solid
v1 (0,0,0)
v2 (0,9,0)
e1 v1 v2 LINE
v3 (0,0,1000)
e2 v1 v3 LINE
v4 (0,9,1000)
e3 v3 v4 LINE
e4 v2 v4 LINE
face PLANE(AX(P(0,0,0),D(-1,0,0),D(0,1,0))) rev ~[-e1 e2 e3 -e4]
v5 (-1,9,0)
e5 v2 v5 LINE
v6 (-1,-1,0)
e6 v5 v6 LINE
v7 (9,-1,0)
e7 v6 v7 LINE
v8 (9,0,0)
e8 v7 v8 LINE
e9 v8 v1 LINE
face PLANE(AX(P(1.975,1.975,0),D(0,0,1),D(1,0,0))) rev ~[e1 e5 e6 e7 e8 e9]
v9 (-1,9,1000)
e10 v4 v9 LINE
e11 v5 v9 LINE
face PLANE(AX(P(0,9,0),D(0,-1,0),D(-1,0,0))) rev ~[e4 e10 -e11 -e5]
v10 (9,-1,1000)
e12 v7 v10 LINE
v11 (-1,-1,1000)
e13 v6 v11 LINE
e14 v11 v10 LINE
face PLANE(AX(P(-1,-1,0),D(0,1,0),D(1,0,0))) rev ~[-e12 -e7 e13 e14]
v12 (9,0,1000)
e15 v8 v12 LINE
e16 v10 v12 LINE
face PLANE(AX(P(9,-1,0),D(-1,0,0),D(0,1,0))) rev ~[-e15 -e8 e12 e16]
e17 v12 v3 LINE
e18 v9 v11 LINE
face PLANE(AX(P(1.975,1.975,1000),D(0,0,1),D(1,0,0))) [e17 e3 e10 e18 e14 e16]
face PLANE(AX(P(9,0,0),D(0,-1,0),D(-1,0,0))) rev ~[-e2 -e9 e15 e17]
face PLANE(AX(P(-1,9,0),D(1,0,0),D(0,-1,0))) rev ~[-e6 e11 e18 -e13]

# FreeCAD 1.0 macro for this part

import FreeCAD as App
import Part
import Sketcher
from FreeCAD import Vector
Q = App.Units.Quantity


def add_polygon(sketch, points):
    """Adds a closed chain of lines whose ends are joined by coincident constraints."""
    first, n = sketch.GeometryCount, len(points)
    for a, b in zip(points, points[1:] + points[:1]):
        sketch.addGeometry(Part.LineSegment(App.Vector(*a, 0), App.Vector(*b, 0)), False)
    for i in range(n):
        sketch.addConstraint(Sketcher.Constraint("Coincident", first + i, 2, first + (i + 1) % n, 1))

doc = App.newDocument("Part")
body = doc.addObject("PartDesign::Body", "Body")

sketch1 = body.newObject("Sketcher::SketchObject", "Sketch")
sketch1.AttachmentSupport = (doc.getObject("XY_Plane"), [""])
sketch1.MapMode = "FlatFace"
add_polygon(sketch1, [(0, 0), (0, 9), (-1, 9), (-1, -1), (9, -1), (9, 0)])
sketch1.addConstraint(Sketcher.Constraint("Vertical", 0))
sketch1.addConstraint(Sketcher.Constraint("Horizontal", 1))
sketch1.addConstraint(Sketcher.Constraint("Vertical", 2))
sketch1.addConstraint(Sketcher.Constraint("Horizontal", 3))
sketch1.addConstraint(Sketcher.Constraint("Vertical", 4))
sketch1.addConstraint(Sketcher.Constraint("Horizontal", 5))
sketch1.addConstraint(Sketcher.Constraint("Coincident", 5, 2, -1, 1))
sketch1.addConstraint(Sketcher.Constraint("Equal", 5, 0))
sketch1.addConstraint(Sketcher.Constraint("Equal", 3, 2))
sketch1.addConstraint(Sketcher.Constraint("DistanceX", 1, 2, 1, 1, Q("1 mm")))
sketch1.addConstraint(Sketcher.Constraint("DistanceX", 3, 1, 3, 2, Q("10 mm")))
pad1 = body.newObject("PartDesign::Pad", "Pad")
pad1.Profile = sketch1
pad1.Length = 1000

doc.recompute()
